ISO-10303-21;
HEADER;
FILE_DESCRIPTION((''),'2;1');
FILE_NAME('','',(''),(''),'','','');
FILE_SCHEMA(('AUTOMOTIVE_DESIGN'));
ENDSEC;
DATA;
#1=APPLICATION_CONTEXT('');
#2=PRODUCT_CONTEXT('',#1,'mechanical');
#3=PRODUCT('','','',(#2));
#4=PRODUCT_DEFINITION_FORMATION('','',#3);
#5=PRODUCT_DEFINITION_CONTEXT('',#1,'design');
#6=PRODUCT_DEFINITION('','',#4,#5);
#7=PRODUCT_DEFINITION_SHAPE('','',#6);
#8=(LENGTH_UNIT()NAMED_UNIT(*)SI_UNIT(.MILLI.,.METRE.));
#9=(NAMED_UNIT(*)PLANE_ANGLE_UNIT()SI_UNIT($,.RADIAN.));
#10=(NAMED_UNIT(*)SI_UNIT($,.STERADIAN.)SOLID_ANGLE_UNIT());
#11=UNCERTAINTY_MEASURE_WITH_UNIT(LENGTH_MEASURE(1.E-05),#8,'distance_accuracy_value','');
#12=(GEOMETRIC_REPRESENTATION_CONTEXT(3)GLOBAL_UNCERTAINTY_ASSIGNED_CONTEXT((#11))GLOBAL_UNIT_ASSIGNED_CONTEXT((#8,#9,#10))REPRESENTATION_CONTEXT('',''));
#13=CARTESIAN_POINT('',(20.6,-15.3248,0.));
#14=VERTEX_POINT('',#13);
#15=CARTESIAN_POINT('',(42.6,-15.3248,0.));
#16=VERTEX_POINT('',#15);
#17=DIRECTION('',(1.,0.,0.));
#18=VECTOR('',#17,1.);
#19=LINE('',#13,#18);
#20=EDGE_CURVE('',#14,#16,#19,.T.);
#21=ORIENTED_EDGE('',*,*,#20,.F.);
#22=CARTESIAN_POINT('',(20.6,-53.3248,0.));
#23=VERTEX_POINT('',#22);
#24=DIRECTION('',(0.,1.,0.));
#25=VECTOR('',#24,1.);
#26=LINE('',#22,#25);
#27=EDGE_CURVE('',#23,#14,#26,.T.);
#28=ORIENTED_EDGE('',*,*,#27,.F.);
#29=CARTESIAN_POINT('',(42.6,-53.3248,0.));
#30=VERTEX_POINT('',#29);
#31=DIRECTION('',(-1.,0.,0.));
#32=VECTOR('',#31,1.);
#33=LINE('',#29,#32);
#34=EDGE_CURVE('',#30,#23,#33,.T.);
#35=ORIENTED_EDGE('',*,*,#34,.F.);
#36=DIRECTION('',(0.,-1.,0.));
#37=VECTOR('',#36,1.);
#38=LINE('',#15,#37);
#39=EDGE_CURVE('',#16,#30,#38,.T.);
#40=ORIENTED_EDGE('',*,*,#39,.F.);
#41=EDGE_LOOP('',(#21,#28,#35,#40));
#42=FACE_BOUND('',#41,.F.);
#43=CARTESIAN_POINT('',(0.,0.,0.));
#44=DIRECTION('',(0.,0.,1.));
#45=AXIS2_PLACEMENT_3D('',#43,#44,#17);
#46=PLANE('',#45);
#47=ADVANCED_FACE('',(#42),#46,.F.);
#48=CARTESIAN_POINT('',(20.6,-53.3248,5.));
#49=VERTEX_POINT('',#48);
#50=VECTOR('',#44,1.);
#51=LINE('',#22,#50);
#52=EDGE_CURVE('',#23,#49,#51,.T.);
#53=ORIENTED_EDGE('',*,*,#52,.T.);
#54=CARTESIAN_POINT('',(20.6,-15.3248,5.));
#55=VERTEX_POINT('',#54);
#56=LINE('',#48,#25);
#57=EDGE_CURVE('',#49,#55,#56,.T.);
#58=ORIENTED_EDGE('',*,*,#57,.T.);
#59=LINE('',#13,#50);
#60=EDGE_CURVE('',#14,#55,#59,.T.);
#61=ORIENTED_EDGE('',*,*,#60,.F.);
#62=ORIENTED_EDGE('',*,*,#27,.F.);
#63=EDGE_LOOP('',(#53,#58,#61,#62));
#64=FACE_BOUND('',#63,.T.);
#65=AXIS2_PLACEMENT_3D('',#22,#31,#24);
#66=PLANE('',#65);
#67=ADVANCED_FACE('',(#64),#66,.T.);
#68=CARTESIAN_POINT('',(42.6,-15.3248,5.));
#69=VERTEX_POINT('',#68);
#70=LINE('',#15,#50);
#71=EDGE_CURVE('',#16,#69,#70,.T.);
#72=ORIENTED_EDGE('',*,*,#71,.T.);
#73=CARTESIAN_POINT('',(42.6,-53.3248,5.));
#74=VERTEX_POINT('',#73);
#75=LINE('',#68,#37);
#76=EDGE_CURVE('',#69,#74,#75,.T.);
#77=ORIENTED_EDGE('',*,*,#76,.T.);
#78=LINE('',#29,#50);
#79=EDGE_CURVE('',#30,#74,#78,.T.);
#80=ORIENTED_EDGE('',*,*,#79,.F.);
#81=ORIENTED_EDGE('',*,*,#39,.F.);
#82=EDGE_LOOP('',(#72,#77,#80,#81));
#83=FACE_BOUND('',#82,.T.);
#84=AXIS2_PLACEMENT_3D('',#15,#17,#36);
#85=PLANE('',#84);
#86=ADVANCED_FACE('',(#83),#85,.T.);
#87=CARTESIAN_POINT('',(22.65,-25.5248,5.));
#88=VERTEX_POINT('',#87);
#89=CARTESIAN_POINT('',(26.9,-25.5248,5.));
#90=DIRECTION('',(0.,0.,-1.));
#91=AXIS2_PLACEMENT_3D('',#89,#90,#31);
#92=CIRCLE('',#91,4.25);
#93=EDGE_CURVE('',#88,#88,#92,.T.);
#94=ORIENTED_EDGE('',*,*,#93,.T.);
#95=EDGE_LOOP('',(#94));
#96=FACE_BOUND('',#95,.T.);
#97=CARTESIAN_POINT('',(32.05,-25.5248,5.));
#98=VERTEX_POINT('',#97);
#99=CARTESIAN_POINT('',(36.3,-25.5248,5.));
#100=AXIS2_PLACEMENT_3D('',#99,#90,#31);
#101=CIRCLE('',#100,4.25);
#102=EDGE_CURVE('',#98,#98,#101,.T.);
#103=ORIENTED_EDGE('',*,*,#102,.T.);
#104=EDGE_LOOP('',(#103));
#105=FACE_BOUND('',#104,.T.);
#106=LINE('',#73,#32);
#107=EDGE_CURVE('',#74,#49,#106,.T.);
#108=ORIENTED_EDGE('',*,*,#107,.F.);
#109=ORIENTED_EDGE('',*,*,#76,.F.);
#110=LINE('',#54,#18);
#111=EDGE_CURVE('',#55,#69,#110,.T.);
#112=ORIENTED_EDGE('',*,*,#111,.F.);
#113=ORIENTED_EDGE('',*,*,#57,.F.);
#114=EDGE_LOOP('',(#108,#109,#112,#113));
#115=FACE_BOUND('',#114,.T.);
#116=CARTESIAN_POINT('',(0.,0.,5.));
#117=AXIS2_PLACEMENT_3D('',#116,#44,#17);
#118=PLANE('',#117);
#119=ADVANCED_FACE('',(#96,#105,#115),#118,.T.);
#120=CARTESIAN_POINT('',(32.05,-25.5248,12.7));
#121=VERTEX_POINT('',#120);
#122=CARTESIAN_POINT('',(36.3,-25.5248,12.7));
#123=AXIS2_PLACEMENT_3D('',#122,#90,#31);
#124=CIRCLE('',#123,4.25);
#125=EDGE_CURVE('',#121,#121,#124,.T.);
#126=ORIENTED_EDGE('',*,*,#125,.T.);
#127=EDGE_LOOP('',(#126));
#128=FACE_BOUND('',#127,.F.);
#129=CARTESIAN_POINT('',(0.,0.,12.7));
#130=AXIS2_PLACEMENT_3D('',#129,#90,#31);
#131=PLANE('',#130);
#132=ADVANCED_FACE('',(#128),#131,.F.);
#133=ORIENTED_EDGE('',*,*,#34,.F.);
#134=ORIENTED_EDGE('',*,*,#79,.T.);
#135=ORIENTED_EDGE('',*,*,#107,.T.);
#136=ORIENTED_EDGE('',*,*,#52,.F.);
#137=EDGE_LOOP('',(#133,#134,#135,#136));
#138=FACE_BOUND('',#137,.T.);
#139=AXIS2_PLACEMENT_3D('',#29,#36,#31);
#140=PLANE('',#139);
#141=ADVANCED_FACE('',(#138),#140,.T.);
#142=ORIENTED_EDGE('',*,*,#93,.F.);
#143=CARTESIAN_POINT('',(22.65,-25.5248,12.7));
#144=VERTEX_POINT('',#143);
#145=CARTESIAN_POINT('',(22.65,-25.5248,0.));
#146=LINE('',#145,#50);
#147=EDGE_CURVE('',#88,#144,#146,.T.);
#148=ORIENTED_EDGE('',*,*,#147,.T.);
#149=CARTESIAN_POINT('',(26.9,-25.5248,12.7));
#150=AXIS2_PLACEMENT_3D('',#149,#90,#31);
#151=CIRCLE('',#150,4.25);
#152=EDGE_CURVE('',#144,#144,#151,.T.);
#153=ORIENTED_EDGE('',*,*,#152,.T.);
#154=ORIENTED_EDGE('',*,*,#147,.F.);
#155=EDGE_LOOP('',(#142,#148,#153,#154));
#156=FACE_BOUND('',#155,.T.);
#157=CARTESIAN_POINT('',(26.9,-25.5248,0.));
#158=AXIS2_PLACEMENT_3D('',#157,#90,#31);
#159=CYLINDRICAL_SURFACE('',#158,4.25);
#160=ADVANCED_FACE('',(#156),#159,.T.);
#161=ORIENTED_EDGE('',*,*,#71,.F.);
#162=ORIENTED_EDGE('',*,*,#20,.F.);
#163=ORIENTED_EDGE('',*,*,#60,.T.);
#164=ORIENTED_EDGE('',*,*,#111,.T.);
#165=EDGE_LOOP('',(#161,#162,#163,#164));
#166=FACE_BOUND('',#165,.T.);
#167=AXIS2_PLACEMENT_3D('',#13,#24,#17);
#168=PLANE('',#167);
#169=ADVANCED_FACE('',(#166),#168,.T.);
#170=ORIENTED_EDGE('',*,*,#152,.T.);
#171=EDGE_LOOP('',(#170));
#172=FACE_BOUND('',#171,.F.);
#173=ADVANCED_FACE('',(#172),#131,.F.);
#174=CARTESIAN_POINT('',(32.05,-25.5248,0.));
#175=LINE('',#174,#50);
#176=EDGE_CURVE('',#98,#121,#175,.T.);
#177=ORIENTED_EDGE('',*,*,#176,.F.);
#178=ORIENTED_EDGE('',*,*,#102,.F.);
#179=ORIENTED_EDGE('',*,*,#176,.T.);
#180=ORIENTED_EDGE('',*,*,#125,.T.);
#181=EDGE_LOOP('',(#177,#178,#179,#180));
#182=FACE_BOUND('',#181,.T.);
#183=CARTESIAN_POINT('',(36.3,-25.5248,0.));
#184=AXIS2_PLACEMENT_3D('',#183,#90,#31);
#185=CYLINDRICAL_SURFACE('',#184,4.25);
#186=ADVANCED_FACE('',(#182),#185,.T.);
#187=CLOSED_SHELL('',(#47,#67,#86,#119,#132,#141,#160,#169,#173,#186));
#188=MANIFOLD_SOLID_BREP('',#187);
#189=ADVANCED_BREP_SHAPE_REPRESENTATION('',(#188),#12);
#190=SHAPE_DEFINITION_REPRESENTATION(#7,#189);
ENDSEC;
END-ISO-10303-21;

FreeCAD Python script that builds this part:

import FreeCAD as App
import Part
import Sketcher

V = App.Vector


def add_polygon(sketch, points):
    """Adds a closed chain of lines whose ends are joined by coincident constraints."""
    first, n = sketch.GeometryCount, len(points)
    for a, b in zip(points, points[1:] + points[:1]):
        sketch.addGeometry(Part.LineSegment(App.Vector(*a, 0), App.Vector(*b, 0)), False)
    for i in range(n):
        sketch.addConstraint(Sketcher.Constraint("Coincident", first + i, 2, first + (i + 1) % n, 1))

doc = App.newDocument("Part")
body = doc.addObject("PartDesign::Body", "Body")

sketch1 = body.newObject("Sketcher::SketchObject", "Sketch")
sketch1.AttachmentSupport = (doc.getObject("XY_Plane"), [""])
sketch1.MapMode = "FlatFace"
add_polygon(sketch1, [(42.6, -15.3), (20.6, -15.3), (20.6, -53.3), (42.6, -53.3)])
sketch1.addGeometry(Part.Circle(V(26.9, -25.5, 0), V(0, 0, 1), 4.2), False)
sketch1.addGeometry(Part.Circle(V(36.3, -25.5, 0), V(0, 0, 1), 4.2), False)
sketch1.addConstraint([
    Sketcher.Constraint("Horizontal", 0),
    Sketcher.Constraint("Vertical", 1),
    Sketcher.Constraint("Horizontal", 2),
    Sketcher.Constraint("Vertical", 3),
    Sketcher.Constraint("Equal", 4, 5),
    Sketcher.Constraint("Horizontal", 4, 3, 5, 3),
    Sketcher.Constraint("Diameter", 4, 8.5),
    Sketcher.Constraint("DistanceX", 0, 2, 0, 1, 22.0),
    Sketcher.Constraint("DistanceY", 1, 2, 1, 1, 38.0),
    Sketcher.Constraint("DistanceX", -1, 1, 0, 2, 20.6),
    Sketcher.Constraint("DistanceX", 0, 2, 4, 3, 6.3),
    Sketcher.Constraint("DistanceY", 4, 3, 0, 2, 10.2),
    Sketcher.Constraint("DistanceX", 5, 3, 2, 2, 6.3),
    Sketcher.Constraint("DistanceY", 0, 2, -1, 1, 15.3248),
])
pad1 = body.newObject("PartDesign::Pad", "Pad")
pad1.Profile = sketch1
pad1.Length = 5

sketch2 = body.newObject("Sketcher::SketchObject", "Sketch001")
sketch2.AttachmentSupport = (doc.getObject("XY_Plane"), [""])
sketch2.MapMode = "FlatFace"
sketch2.addGeometry([
    Part.Circle(V(36.3, -25.5, 0), V(0, 0, 1), 4.2),
    Part.Circle(V(26.9, -25.5, 0), V(0, 0, 1), 4.2),
], False)
sketch2.addConstraint([
    Sketcher.Constraint("Equal", 0, 1),
    Sketcher.Constraint("Horizontal", 0, 3, 1, 3),
    Sketcher.Constraint("Diameter", 0, 8.5),
    Sketcher.Constraint("DistanceX", -1, 1, 0, 3, 36.3),
    Sketcher.Constraint("DistanceX", -1, 1, 1, 3, 26.9),
    Sketcher.Constraint("DistanceY", 0, 3, -1, 1, 25.5248),
])
pad2 = body.newObject("PartDesign::Pad", "Pad001")
pad2.Profile = sketch2
pad2.Length = 12.7

doc.recompute()
